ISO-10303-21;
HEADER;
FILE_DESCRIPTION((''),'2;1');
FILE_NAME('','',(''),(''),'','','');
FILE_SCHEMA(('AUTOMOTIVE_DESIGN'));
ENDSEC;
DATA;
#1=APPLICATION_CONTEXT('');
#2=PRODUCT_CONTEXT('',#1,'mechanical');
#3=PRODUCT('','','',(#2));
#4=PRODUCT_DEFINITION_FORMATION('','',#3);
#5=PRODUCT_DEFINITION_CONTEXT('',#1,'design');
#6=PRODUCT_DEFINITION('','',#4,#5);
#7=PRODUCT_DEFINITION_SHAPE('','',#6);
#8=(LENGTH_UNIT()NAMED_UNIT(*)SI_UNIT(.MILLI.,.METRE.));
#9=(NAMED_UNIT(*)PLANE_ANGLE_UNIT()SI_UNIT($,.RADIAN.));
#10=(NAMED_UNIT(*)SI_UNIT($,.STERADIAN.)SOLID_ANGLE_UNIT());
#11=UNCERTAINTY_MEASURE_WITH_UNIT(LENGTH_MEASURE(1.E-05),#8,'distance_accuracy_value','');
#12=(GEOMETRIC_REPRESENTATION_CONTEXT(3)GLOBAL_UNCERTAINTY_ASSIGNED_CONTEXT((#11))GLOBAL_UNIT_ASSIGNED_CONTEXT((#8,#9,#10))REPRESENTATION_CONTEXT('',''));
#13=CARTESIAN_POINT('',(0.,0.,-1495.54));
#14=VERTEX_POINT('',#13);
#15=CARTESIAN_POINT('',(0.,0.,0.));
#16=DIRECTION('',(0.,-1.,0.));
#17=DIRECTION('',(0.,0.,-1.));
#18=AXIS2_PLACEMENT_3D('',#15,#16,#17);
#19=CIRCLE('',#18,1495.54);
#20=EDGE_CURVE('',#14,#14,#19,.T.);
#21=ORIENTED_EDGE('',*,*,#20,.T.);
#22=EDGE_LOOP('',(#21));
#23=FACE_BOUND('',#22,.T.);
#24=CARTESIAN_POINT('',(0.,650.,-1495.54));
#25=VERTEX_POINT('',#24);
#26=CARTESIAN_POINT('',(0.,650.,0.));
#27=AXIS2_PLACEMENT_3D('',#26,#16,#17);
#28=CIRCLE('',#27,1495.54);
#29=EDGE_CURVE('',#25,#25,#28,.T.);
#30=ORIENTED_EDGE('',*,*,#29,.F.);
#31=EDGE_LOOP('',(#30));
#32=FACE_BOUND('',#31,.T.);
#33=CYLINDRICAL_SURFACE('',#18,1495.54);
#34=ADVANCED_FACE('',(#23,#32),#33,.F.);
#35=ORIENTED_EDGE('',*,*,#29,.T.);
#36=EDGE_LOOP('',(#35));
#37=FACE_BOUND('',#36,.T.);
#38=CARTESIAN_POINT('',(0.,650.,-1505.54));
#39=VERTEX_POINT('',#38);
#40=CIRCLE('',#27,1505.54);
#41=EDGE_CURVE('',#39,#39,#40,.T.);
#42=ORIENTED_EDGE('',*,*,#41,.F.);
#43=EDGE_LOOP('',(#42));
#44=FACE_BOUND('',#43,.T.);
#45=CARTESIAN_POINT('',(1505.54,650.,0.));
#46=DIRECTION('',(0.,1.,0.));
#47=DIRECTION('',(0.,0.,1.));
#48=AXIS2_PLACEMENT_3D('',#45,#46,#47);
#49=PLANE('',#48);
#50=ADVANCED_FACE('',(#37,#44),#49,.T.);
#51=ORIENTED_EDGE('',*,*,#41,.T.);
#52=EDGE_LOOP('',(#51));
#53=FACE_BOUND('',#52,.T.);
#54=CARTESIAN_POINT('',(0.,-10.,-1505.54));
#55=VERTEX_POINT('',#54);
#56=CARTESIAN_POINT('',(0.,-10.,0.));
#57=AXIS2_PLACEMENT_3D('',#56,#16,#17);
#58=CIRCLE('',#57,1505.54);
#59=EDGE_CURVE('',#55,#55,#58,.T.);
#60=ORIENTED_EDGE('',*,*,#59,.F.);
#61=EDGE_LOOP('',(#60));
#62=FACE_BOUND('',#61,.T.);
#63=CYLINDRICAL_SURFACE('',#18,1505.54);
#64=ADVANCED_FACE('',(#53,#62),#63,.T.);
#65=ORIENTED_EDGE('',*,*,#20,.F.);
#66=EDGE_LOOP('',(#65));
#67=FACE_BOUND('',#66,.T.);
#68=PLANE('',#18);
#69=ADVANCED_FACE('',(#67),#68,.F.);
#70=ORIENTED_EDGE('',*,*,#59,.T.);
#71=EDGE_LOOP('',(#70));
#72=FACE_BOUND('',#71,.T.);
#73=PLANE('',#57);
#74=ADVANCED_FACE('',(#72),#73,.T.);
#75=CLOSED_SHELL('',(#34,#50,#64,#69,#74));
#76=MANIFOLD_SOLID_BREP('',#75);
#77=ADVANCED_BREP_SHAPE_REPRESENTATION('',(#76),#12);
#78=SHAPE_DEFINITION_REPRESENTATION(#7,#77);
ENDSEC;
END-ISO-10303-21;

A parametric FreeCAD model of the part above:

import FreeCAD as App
import Part
import Sketcher
Q = App.Units.Quantity

doc = App.newDocument("Part")
body = doc.addObject("PartDesign::Body", "Body")

sketch1 = body.newObject("Sketcher::SketchObject", "Sketch")
sketch1.AttachmentSupport = (doc.getObject("XY_Plane"), [""])
sketch1.MapMode = "FlatFace"
sketch1.addGeometry(Part.LineSegment(App.Vector(1495.54, 0, 0), App.Vector(0, 0, 0)), False)
sketch1.addGeometry(Part.LineSegment(App.Vector(0, 0, 0), App.Vector(0, -10, 0)), False)
sketch1.addGeometry(Part.LineSegment(App.Vector(0, -10, 0), App.Vector(1505.54, -10, 0)), False)
sketch1.addGeometry(Part.LineSegment(App.Vector(1505.54, -10, 0), App.Vector(1505.54, 650, 0)), False)
sketch1.addGeometry(Part.LineSegment(App.Vector(1505.54, 650, 0), App.Vector(1495.54, 650, 0)), False)
sketch1.addGeometry(Part.LineSegment(App.Vector(1495.54, 650, 0), App.Vector(1495.54, 0, 0)), False)
sketch1.addConstraint(Sketcher.Constraint("Coincident", 0, 2, 1, 1))
sketch1.addConstraint(Sketcher.Constraint("Coincident", 1, 2, 2, 1))
sketch1.addConstraint(Sketcher.Constraint("Coincident", 2, 2, 3, 1))
sketch1.addConstraint(Sketcher.Constraint("Coincident", 3, 2, 4, 1))
sketch1.addConstraint(Sketcher.Constraint("Coincident", 4, 2, 5, 1))
sketch1.addConstraint(Sketcher.Constraint("Coincident", 5, 2, 0, 1))
sketch1.addConstraint(Sketcher.Constraint("Horizontal", 0))
sketch1.addConstraint(Sketcher.Constraint("Vertical", 1))
sketch1.addConstraint(Sketcher.Constraint("Horizontal", 2))
sketch1.addConstraint(Sketcher.Constraint("Vertical", 3))
sketch1.addConstraint(Sketcher.Constraint("Horizontal", 4))
sketch1.addConstraint(Sketcher.Constraint("Vertical", 5))
sketch1.addConstraint(Sketcher.Constraint("Coincident", 0, 2, -1, 1))
sketch1.addConstraint(Sketcher.Constraint("Equal", 4, 1))
sketch1.addConstraint(Sketcher.Constraint("DistanceX", 4, 2, 4, 1, Q("10 mm")))
sketch1.addConstraint(Sketcher.Constraint("DistanceY", 3, 1, 3, 2, Q("660 mm")))
sketch1.addConstraint(Sketcher.Constraint("DistanceX", 0, 2, 0, 1, Q("1495.54 mm")))
revolution = body.newObject("PartDesign::Revolution", "Revolution")
revolution.Profile = sketch1
revolution.ReferenceAxis = (sketch1, ["V_Axis"])
revolution.Angle = 360

doc.recompute()
